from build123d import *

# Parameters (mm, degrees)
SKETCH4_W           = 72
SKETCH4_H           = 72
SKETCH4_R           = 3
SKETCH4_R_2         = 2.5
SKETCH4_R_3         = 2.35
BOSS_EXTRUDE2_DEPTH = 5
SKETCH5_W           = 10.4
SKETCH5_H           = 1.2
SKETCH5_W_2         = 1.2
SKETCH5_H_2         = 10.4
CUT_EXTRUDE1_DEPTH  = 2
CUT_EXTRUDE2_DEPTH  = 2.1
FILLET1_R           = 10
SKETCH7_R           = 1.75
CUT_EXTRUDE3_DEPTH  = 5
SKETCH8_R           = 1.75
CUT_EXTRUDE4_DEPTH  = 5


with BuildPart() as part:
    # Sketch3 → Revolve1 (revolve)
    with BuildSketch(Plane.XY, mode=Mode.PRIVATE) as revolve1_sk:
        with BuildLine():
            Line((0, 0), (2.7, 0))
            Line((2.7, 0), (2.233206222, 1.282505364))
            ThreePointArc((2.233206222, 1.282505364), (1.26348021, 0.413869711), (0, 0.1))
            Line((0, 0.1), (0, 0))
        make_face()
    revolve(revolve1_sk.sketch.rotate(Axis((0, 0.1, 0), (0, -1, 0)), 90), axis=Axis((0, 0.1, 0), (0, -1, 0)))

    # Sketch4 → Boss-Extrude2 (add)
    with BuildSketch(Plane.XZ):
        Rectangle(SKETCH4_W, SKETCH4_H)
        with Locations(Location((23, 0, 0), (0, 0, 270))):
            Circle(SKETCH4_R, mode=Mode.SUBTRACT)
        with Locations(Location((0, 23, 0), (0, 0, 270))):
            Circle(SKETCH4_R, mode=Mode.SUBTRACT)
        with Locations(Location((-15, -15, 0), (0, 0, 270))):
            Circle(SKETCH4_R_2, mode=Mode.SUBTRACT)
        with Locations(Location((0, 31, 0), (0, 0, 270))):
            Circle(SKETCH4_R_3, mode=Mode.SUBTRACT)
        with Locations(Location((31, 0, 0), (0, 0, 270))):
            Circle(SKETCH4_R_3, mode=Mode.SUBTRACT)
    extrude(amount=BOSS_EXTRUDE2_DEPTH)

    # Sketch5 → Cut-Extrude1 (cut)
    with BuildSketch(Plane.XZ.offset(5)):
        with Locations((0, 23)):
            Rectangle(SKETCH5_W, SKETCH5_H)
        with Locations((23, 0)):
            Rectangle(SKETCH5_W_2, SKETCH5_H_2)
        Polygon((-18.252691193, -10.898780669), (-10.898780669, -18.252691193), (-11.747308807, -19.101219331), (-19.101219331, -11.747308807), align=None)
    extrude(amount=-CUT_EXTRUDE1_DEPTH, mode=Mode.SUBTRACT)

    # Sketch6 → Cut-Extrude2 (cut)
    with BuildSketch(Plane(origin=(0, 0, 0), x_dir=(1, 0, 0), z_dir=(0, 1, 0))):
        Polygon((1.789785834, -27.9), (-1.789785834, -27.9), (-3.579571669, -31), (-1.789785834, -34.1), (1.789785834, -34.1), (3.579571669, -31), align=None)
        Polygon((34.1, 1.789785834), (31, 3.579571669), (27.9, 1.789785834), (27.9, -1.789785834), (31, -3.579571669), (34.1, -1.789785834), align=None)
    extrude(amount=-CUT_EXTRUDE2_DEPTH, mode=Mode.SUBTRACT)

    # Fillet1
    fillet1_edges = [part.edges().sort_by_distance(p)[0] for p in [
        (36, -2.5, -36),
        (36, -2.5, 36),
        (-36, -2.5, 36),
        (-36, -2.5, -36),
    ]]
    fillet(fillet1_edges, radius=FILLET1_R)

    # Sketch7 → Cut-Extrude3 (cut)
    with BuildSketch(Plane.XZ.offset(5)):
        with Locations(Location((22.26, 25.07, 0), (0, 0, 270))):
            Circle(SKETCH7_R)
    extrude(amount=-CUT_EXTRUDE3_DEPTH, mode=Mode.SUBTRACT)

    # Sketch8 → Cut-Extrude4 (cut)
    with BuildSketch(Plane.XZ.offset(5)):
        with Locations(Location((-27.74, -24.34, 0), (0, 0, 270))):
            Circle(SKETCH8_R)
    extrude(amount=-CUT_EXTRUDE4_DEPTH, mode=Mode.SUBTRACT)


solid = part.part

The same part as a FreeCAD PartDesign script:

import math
import FreeCAD as App
import Part
import Sketcher

V = App.Vector
Q = App.Units.Quantity


def edges_at(feature, points):
    """Names of the edges that pass closest to the given points."""
    edges = feature.Shape.Edges
    near = lambda p: min(range(len(edges)), key=lambda i: edges[i].distToShape(Part.Vertex(*p))[0])
    return sorted({f"Edge{near(p) + 1}" for p in points})

doc = App.newDocument("Part")
body = doc.addObject("PartDesign::Body", "Body")

sketch1 = doc.addObject("Sketcher::SketchObject", "Sketch")
body.addObject(sketch1)
sketch1.AttachmentSupport = (doc.XY_Plane, [""])
sketch1.MapMode = "FlatFace"
sketch1.addGeometry(Part.LineSegment(V(0, 0, 0), V(2.7, 0, 0)), False)
sketch1.addGeometry(Part.LineSegment(V(2.7, 0, 0), V(2.23, 1.28, 0)), False)
sketch1.addGeometry(Part.ArcOfCircle(Part.Circle(V(0, 2.8, 0), V(0, 0, 1), 2.7), math.radians(-90), math.radians(-34)), False)
sketch1.addGeometry(Part.LineSegment(V(0, 0.1, 0), V(0, 0, 0)), False)
sketch1.addConstraint(Sketcher.Constraint("Coincident", 0, 2, 1, 1))
sketch1.addConstraint(Sketcher.Constraint("Coincident", 1, 2, 2, 2))
sketch1.addConstraint(Sketcher.Constraint("Coincident", 2, 1, 3, 1))
sketch1.addConstraint(Sketcher.Constraint("Coincident", 3, 2, 0, 1))
sketch1.addConstraint(Sketcher.Constraint("Horizontal", 0))
sketch1.addConstraint(Sketcher.Constraint("Vertical", 3))
sketch1.addConstraint(Sketcher.Constraint("Coincident", 3, 2, -1, 1))
sketch1.addConstraint(Sketcher.Constraint("PointOnObject", 2, 3, -2))
sketch1.addConstraint(Sketcher.Constraint("Radius", 2, 2.7))
sketch1.addConstraint(Sketcher.Constraint("Angle", 1, Q("110 deg")))
sketch1.addConstraint(Sketcher.Constraint("DistanceX", 0, 1, 0, 2, 2.7))
sketch1.addConstraint(Sketcher.Constraint("DistanceY", 3, 2, 3, 1, 0.1))
revolution = doc.addObject("PartDesign::Revolution", "Revolution")
body.addObject(revolution)
revolution.Profile = sketch1
revolution.ReferenceAxis = (sketch1, ["V_Axis"])
revolution.Angle = 360

sketch2 = doc.addObject("Sketcher::SketchObject", "Sketch001")
body.addObject(sketch2)
sketch2.AttachmentSupport = (doc.XZ_Plane, [""])
sketch2.MapMode = "FlatFace"
sketch2.addGeometry(Part.LineSegment(V(-36, 36, 0), V(-36, -36, 0)), False)
sketch2.addGeometry(Part.LineSegment(V(-36, -36, 0), V(36, -36, 0)), False)
sketch2.addGeometry(Part.LineSegment(V(36, -36, 0), V(36, 36, 0)), False)
sketch2.addGeometry(Part.LineSegment(V(36, 36, 0), V(-36, 36, 0)), False)
sketch2.addGeometry(Part.Circle(V(-15, -15, 0), V(0, 0, 1), 2.5), False)
sketch2.addGeometry(Part.Circle(V(23, 0, 0), V(0, 0, 1), 3), False)
sketch2.addGeometry(Part.Circle(V(31, 0, 0), V(0, 0, 1), 2.4), False)
sketch2.addGeometry(Part.Circle(V(0, 23, 0), V(0, 0, 1), 3), False)
sketch2.addGeometry(Part.Circle(V(0, 31, 0), V(0, 0, 1), 2.4), False)
sketch2.addConstraint(Sketcher.Constraint("Coincident", 0, 2, 1, 1))
sketch2.addConstraint(Sketcher.Constraint("Coincident", 1, 2, 2, 1))
sketch2.addConstraint(Sketcher.Constraint("Coincident", 2, 2, 3, 1))
sketch2.addConstraint(Sketcher.Constraint("Coincident", 3, 2, 0, 1))
sketch2.addConstraint(Sketcher.Constraint("Vertical", 0))
sketch2.addConstraint(Sketcher.Constraint("Horizontal", 1))
sketch2.addConstraint(Sketcher.Constraint("Vertical", 2))
sketch2.addConstraint(Sketcher.Constraint("Horizontal", 3))
sketch2.addConstraint(Sketcher.Constraint("Equal", 5, 7))
sketch2.addConstraint(Sketcher.Constraint("Equal", 6, 8))
sketch2.addConstraint(Sketcher.Constraint("Symmetric", 0, 2, 2, 2, -1, 1))
sketch2.addConstraint(Sketcher.Constraint("PointOnObject", 5, 3, -1))
sketch2.addConstraint(Sketcher.Constraint("PointOnObject", 6, 3, -1))
sketch2.addConstraint(Sketcher.Constraint("PointOnObject", 7, 3, -2))
sketch2.addConstraint(Sketcher.Constraint("PointOnObject", 8, 3, -2))
sketch2.addConstraint(Sketcher.Constraint("Equal", 3, 0))
sketch2.addConstraint(Sketcher.Constraint("Diameter", 4, 5.0))
sketch2.addConstraint(Sketcher.Constraint("Diameter", 5, 6.0))
sketch2.addConstraint(Sketcher.Constraint("Diameter", 6, 4.7))
sketch2.addConstraint(Sketcher.Constraint("DistanceX", 1, 1, 1, 2, 72.0))
sketch2.addConstraint(Sketcher.Constraint("DistanceX", 4, 3, -1, 1, 15.0))
sketch2.addConstraint(Sketcher.Constraint("DistanceY", 4, 3, -1, 1, 15.0))
sketch2.addConstraint(Sketcher.Constraint("DistanceX", -1, 1, 5, 3, 23.0))
sketch2.addConstraint(Sketcher.Constraint("DistanceX", -1, 1, 6, 3, 31.0))
sketch2.addConstraint(Sketcher.Constraint("DistanceY", -1, 1, 7, 3, 23.0))
sketch2.addConstraint(Sketcher.Constraint("DistanceY", -1, 1, 8, 3, 31.0))
pad1 = doc.addObject("PartDesign::Pad", "Pad")
body.addObject(pad1)
pad1.Profile = sketch2
pad1.Length = 5

sketch3 = doc.addObject("Sketcher::SketchObject", "Sketch002")
body.addObject(sketch3)
sketch3.AttachmentSupport = (doc.XZ_Plane, [""])
sketch3.MapMode = "FlatFace"
sketch3.AttachmentOffset = App.Placement(V(0, 0, 5), App.Rotation())
sketch3.addGeometry(Part.LineSegment(V(-5.2, 23.6, 0), V(-5.2, 22.4, 0)), False)
sketch3.addGeometry(Part.LineSegment(V(-5.2, 22.4, 0), V(5.2, 22.4, 0)), False)
sketch3.addGeometry(Part.LineSegment(V(5.2, 22.4, 0), V(5.2, 23.6, 0)), False)
sketch3.addGeometry(Part.LineSegment(V(5.2, 23.6, 0), V(-5.2, 23.6, 0)), False)
sketch3.addGeometry(Part.LineSegment(V(22.4, 5.2, 0), V(22.4, -5.2, 0)), False)
sketch3.addGeometry(Part.LineSegment(V(22.4, -5.2, 0), V(23.6, -5.2, 0)), False)
sketch3.addGeometry(Part.LineSegment(V(23.6, -5.2, 0), V(23.6, 5.2, 0)), False)
sketch3.addGeometry(Part.LineSegment(V(23.6, 5.2, 0), V(22.4, 5.2, 0)), False)
sketch3.addGeometry(Part.LineSegment(V(-10.9, -18.3, 0), V(-18.3, -10.9, 0)), False)
sketch3.addGeometry(Part.LineSegment(V(-18.3, -10.9, 0), V(-19.1, -11.7, 0)), False)
sketch3.addGeometry(Part.LineSegment(V(-19.1, -11.7, 0), V(-11.7, -19.1, 0)), False)
sketch3.addGeometry(Part.LineSegment(V(-11.7, -19.1, 0), V(-10.9, -18.3, 0)), False)
sketch3.addConstraint(Sketcher.Constraint("Coincident", 0, 2, 1, 1))
sketch3.addConstraint(Sketcher.Constraint("Coincident", 1, 2, 2, 1))
sketch3.addConstraint(Sketcher.Constraint("Coincident", 2, 2, 3, 1))
sketch3.addConstraint(Sketcher.Constraint("Coincident", 3, 2, 0, 1))
sketch3.addConstraint(Sketcher.Constraint("Coincident", 4, 2, 5, 1))
sketch3.addConstraint(Sketcher.Constraint("Coincident", 5, 2, 6, 1))
sketch3.addConstraint(Sketcher.Constraint("Coincident", 6, 2, 7, 1))
sketch3.addConstraint(Sketcher.Constraint("Coincident", 7, 2, 4, 1))
sketch3.addConstraint(Sketcher.Constraint("Coincident", 8, 2, 9, 1))
sketch3.addConstraint(Sketcher.Constraint("Coincident", 9, 2, 10, 1))
sketch3.addConstraint(Sketcher.Constraint("Coincident", 10, 2, 11, 1))
sketch3.addConstraint(Sketcher.Constraint("Coincident", 11, 2, 8, 1))
sketch3.addConstraint(Sketcher.Constraint("Vertical", 0))
sketch3.addConstraint(Sketcher.Constraint("Horizontal", 1))
sketch3.addConstraint(Sketcher.Constraint("Vertical", 2))
sketch3.addConstraint(Sketcher.Constraint("Horizontal", 3))
sketch3.addConstraint(Sketcher.Constraint("Vertical", 4))
sketch3.addConstraint(Sketcher.Constraint("Horizontal", 5))
sketch3.addConstraint(Sketcher.Constraint("Vertical", 6))
sketch3.addConstraint(Sketcher.Constraint("Horizontal", 7))
sketch3.addConstraint(Sketcher.Constraint("Perpendicular", 8, 9))
sketch3.addConstraint(Sketcher.Constraint("Perpendicular", 9, 10))
sketch3.addConstraint(Sketcher.Constraint("Perpendicular", 10, 11))
sketch3.addConstraint(Sketcher.Constraint("Equal", 7, 0))
sketch3.addConstraint(Sketcher.Constraint("Equal", 3, 4))
sketch3.addConstraint(Sketcher.Constraint("Angle", 8, Q("135 deg")))
sketch3.addConstraint(Sketcher.Constraint("DistanceX", 1, 1, 1, 2, 10.4))
sketch3.addConstraint(Sketcher.Constraint("DistanceX", 5, 1, 5, 2, 1.2))
sketch3.addConstraint(Sketcher.Constraint("Distance", 8, 10.4))
sketch3.addConstraint(Sketcher.Constraint("Distance", 9, 1.2))
sketch3.addConstraint(Sketcher.Constraint("DistanceX", 0, 2, -1, 1, 5.2))
sketch3.addConstraint(Sketcher.Constraint("DistanceY", -1, 1, 0, 2, 22.4))
sketch3.addConstraint(Sketcher.Constraint("DistanceX", -1, 1, 4, 2, 22.4))
sketch3.addConstraint(Sketcher.Constraint("DistanceY", 4, 2, -1, 1, 5.2))
sketch3.addConstraint(Sketcher.Constraint("DistanceX", 8, 2, -1, 1, 18.252691))
sketch3.addConstraint(Sketcher.Constraint("DistanceY", 8, 2, -1, 1, 10.898781))
pocket1 = doc.addObject("PartDesign::Pocket", "Pocket")
body.addObject(pocket1)
pocket1.Profile = sketch3
pocket1.Length = 2

sketch4 = doc.addObject("Sketcher::SketchObject", "Sketch003")
body.addObject(sketch4)
sketch4.AttachmentSupport = (doc.XZ_Plane, [""])
sketch4.MapMode = "FlatFace"
sketch4.addGeometry(Part.LineSegment(V(1.8, 27.9, 0), V(-1.8, 27.9, 0)), False)
sketch4.addGeometry(Part.LineSegment(V(-1.8, 27.9, 0), V(-3.6, 31, 0)), False)
sketch4.addGeometry(Part.LineSegment(V(-3.6, 31, 0), V(-1.8, 34.1, 0)), False)
sketch4.addGeometry(Part.LineSegment(V(-1.8, 34.1, 0), V(1.8, 34.1, 0)), False)
sketch4.addGeometry(Part.LineSegment(V(1.8, 34.1, 0), V(3.6, 31, 0)), False)
sketch4.addGeometry(Part.LineSegment(V(3.6, 31, 0), V(1.8, 27.9, 0)), False)
sketch4.addGeometry(Part.LineSegment(V(34.1, -1.8, 0), V(31, -3.6, 0)), False)
sketch4.addGeometry(Part.LineSegment(V(31, -3.6, 0), V(27.9, -1.8, 0)), False)
sketch4.addGeometry(Part.LineSegment(V(27.9, -1.8, 0), V(27.9, 1.8, 0)), False)
sketch4.addGeometry(Part.LineSegment(V(27.9, 1.8, 0), V(31, 3.6, 0)), False)
sketch4.addGeometry(Part.LineSegment(V(31, 3.6, 0), V(34.1, 1.8, 0)), False)
sketch4.addGeometry(Part.LineSegment(V(34.1, 1.8, 0), V(34.1, -1.8, 0)), False)
sketch4.addConstraint(Sketcher.Constraint("Coincident", 0, 2, 1, 1))
sketch4.addConstraint(Sketcher.Constraint("Coincident", 1, 2, 2, 1))
sketch4.addConstraint(Sketcher.Constraint("Coincident", 2, 2, 3, 1))
sketch4.addConstraint(Sketcher.Constraint("Coincident", 3, 2, 4, 1))
sketch4.addConstraint(Sketcher.Constraint("Coincident", 4, 2, 5, 1))
sketch4.addConstraint(Sketcher.Constraint("Coincident", 5, 2, 0, 1))
sketch4.addConstraint(Sketcher.Constraint("Coincident", 6, 2, 7, 1))
sketch4.addConstraint(Sketcher.Constraint("Coincident", 7, 2, 8, 1))
sketch4.addConstraint(Sketcher.Constraint("Coincident", 8, 2, 9, 1))
sketch4.addConstraint(Sketcher.Constraint("Coincident", 9, 2, 10, 1))
sketch4.addConstraint(Sketcher.Constraint("Coincident", 10, 2, 11, 1))
sketch4.addConstraint(Sketcher.Constraint("Coincident", 11, 2, 6, 1))
sketch4.addConstraint(Sketcher.Constraint("Horizontal", 0))
sketch4.addConstraint(Sketcher.Constraint("Horizontal", 3))
sketch4.addConstraint(Sketcher.Constraint("Vertical", 8))
sketch4.addConstraint(Sketcher.Constraint("Vertical", 11))
sketch4.addConstraint(Sketcher.Constraint("Symmetric", 1, 2, 4, 2, -2))
sketch4.addConstraint(Sketcher.Constraint("Symmetric", 6, 2, 9, 2, -1))
sketch4.addConstraint(Sketcher.Constraint("Parallel", 1, 4))
sketch4.addConstraint(Sketcher.Constraint("Parallel", 2, 5))
sketch4.addConstraint(Sketcher.Constraint("Perpendicular", 4, 6))
sketch4.addConstraint(Sketcher.Constraint("Perpendicular", 5, 7))
sketch4.addConstraint(Sketcher.Constraint("Parallel", 6, 9))
sketch4.addConstraint(Sketcher.Constraint("Parallel", 7, 10))
sketch4.addConstraint(Sketcher.Constraint("Horizontal", 8, 2, 10, 2))
sketch4.addConstraint(Sketcher.Constraint("Horizontal", 7, 2, 11, 2))
sketch4.addConstraint(Sketcher.Constraint("Vertical", 0, 2, 2, 2))
sketch4.addConstraint(Sketcher.Constraint("Equal", 3, 8))
sketch4.addConstraint(Sketcher.Constraint("Equal", 5, 6))
sketch4.addConstraint(Sketcher.Constraint("Angle", 1, Q("120 deg")))
sketch4.addConstraint(Sketcher.Constraint("DistanceY", -1, 1, 1, 2, 31.0))
sketch4.addConstraint(Sketcher.Constraint("DistanceX", -1, 1, 6, 2, 31.0))
sketch4.addConstraint(Sketcher.Constraint("DistanceY", -1, 1, 0, 2, 27.9))
sketch4.addConstraint(Sketcher.Constraint("DistanceX", 0, 2, 0, 1, 3.579572))
pocket2 = doc.addObject("PartDesign::Pocket", "Pocket001")
body.addObject(pocket2)
pocket2.Profile = sketch4
pocket2.Length = 2.1
pocket2.Reversed = True
doc.recompute()

fillet = doc.addObject("PartDesign::Fillet", "Fillet")
body.addObject(fillet)
fillet.Base = (pocket2, edges_at(pocket2, [
    (36, -2.5, -36),
    (36, -2.5, 36),
    (-36, -2.5, 36),
    (-36, -2.5, -36),
]))
fillet.Radius = 10

sketch5 = doc.addObject("Sketcher::SketchObject", "Sketch004")
body.addObject(sketch5)
sketch5.AttachmentSupport = (doc.XZ_Plane, [""])
sketch5.MapMode = "FlatFace"
sketch5.AttachmentOffset = App.Placement(V(0, 0, 5), App.Rotation())
sketch5.addGeometry(Part.Circle(V(22.3, 25.1, 0), V(0, 0, 1), 1.8), False)
sketch5.addConstraint(Sketcher.Constraint("Diameter", 0, 3.5))
sketch5.addConstraint(Sketcher.Constraint("DistanceX", -1, 1, 0, 3, 22.26))
sketch5.addConstraint(Sketcher.Constraint("DistanceY", -1, 1, 0, 3, 25.07))
pocket3 = doc.addObject("PartDesign::Pocket", "Pocket002")
body.addObject(pocket3)
pocket3.Profile = sketch5
pocket3.Length = 5

sketch6 = doc.addObject("Sketcher::SketchObject", "Sketch005")
body.addObject(sketch6)
sketch6.AttachmentSupport = (doc.XZ_Plane, [""])
sketch6.MapMode = "FlatFace"
sketch6.AttachmentOffset = App.Placement(V(0, 0, 5), App.Rotation())
sketch6.addGeometry(Part.Circle(V(-27.7, -24.3, 0), V(0, 0, 1), 1.8), False)
sketch6.addConstraint(Sketcher.Constraint("Diameter", 0, 3.5))
sketch6.addConstraint(Sketcher.Constraint("DistanceX", 0, 3, -1, 1, 27.74))
sketch6.addConstraint(Sketcher.Constraint("DistanceY", 0, 3, -1, 1, 24.34))
pocket4 = doc.addObject("PartDesign::Pocket", "Pocket003")
body.addObject(pocket4)
pocket4.Profile = sketch6
pocket4.Length = 5

doc.recompute()
